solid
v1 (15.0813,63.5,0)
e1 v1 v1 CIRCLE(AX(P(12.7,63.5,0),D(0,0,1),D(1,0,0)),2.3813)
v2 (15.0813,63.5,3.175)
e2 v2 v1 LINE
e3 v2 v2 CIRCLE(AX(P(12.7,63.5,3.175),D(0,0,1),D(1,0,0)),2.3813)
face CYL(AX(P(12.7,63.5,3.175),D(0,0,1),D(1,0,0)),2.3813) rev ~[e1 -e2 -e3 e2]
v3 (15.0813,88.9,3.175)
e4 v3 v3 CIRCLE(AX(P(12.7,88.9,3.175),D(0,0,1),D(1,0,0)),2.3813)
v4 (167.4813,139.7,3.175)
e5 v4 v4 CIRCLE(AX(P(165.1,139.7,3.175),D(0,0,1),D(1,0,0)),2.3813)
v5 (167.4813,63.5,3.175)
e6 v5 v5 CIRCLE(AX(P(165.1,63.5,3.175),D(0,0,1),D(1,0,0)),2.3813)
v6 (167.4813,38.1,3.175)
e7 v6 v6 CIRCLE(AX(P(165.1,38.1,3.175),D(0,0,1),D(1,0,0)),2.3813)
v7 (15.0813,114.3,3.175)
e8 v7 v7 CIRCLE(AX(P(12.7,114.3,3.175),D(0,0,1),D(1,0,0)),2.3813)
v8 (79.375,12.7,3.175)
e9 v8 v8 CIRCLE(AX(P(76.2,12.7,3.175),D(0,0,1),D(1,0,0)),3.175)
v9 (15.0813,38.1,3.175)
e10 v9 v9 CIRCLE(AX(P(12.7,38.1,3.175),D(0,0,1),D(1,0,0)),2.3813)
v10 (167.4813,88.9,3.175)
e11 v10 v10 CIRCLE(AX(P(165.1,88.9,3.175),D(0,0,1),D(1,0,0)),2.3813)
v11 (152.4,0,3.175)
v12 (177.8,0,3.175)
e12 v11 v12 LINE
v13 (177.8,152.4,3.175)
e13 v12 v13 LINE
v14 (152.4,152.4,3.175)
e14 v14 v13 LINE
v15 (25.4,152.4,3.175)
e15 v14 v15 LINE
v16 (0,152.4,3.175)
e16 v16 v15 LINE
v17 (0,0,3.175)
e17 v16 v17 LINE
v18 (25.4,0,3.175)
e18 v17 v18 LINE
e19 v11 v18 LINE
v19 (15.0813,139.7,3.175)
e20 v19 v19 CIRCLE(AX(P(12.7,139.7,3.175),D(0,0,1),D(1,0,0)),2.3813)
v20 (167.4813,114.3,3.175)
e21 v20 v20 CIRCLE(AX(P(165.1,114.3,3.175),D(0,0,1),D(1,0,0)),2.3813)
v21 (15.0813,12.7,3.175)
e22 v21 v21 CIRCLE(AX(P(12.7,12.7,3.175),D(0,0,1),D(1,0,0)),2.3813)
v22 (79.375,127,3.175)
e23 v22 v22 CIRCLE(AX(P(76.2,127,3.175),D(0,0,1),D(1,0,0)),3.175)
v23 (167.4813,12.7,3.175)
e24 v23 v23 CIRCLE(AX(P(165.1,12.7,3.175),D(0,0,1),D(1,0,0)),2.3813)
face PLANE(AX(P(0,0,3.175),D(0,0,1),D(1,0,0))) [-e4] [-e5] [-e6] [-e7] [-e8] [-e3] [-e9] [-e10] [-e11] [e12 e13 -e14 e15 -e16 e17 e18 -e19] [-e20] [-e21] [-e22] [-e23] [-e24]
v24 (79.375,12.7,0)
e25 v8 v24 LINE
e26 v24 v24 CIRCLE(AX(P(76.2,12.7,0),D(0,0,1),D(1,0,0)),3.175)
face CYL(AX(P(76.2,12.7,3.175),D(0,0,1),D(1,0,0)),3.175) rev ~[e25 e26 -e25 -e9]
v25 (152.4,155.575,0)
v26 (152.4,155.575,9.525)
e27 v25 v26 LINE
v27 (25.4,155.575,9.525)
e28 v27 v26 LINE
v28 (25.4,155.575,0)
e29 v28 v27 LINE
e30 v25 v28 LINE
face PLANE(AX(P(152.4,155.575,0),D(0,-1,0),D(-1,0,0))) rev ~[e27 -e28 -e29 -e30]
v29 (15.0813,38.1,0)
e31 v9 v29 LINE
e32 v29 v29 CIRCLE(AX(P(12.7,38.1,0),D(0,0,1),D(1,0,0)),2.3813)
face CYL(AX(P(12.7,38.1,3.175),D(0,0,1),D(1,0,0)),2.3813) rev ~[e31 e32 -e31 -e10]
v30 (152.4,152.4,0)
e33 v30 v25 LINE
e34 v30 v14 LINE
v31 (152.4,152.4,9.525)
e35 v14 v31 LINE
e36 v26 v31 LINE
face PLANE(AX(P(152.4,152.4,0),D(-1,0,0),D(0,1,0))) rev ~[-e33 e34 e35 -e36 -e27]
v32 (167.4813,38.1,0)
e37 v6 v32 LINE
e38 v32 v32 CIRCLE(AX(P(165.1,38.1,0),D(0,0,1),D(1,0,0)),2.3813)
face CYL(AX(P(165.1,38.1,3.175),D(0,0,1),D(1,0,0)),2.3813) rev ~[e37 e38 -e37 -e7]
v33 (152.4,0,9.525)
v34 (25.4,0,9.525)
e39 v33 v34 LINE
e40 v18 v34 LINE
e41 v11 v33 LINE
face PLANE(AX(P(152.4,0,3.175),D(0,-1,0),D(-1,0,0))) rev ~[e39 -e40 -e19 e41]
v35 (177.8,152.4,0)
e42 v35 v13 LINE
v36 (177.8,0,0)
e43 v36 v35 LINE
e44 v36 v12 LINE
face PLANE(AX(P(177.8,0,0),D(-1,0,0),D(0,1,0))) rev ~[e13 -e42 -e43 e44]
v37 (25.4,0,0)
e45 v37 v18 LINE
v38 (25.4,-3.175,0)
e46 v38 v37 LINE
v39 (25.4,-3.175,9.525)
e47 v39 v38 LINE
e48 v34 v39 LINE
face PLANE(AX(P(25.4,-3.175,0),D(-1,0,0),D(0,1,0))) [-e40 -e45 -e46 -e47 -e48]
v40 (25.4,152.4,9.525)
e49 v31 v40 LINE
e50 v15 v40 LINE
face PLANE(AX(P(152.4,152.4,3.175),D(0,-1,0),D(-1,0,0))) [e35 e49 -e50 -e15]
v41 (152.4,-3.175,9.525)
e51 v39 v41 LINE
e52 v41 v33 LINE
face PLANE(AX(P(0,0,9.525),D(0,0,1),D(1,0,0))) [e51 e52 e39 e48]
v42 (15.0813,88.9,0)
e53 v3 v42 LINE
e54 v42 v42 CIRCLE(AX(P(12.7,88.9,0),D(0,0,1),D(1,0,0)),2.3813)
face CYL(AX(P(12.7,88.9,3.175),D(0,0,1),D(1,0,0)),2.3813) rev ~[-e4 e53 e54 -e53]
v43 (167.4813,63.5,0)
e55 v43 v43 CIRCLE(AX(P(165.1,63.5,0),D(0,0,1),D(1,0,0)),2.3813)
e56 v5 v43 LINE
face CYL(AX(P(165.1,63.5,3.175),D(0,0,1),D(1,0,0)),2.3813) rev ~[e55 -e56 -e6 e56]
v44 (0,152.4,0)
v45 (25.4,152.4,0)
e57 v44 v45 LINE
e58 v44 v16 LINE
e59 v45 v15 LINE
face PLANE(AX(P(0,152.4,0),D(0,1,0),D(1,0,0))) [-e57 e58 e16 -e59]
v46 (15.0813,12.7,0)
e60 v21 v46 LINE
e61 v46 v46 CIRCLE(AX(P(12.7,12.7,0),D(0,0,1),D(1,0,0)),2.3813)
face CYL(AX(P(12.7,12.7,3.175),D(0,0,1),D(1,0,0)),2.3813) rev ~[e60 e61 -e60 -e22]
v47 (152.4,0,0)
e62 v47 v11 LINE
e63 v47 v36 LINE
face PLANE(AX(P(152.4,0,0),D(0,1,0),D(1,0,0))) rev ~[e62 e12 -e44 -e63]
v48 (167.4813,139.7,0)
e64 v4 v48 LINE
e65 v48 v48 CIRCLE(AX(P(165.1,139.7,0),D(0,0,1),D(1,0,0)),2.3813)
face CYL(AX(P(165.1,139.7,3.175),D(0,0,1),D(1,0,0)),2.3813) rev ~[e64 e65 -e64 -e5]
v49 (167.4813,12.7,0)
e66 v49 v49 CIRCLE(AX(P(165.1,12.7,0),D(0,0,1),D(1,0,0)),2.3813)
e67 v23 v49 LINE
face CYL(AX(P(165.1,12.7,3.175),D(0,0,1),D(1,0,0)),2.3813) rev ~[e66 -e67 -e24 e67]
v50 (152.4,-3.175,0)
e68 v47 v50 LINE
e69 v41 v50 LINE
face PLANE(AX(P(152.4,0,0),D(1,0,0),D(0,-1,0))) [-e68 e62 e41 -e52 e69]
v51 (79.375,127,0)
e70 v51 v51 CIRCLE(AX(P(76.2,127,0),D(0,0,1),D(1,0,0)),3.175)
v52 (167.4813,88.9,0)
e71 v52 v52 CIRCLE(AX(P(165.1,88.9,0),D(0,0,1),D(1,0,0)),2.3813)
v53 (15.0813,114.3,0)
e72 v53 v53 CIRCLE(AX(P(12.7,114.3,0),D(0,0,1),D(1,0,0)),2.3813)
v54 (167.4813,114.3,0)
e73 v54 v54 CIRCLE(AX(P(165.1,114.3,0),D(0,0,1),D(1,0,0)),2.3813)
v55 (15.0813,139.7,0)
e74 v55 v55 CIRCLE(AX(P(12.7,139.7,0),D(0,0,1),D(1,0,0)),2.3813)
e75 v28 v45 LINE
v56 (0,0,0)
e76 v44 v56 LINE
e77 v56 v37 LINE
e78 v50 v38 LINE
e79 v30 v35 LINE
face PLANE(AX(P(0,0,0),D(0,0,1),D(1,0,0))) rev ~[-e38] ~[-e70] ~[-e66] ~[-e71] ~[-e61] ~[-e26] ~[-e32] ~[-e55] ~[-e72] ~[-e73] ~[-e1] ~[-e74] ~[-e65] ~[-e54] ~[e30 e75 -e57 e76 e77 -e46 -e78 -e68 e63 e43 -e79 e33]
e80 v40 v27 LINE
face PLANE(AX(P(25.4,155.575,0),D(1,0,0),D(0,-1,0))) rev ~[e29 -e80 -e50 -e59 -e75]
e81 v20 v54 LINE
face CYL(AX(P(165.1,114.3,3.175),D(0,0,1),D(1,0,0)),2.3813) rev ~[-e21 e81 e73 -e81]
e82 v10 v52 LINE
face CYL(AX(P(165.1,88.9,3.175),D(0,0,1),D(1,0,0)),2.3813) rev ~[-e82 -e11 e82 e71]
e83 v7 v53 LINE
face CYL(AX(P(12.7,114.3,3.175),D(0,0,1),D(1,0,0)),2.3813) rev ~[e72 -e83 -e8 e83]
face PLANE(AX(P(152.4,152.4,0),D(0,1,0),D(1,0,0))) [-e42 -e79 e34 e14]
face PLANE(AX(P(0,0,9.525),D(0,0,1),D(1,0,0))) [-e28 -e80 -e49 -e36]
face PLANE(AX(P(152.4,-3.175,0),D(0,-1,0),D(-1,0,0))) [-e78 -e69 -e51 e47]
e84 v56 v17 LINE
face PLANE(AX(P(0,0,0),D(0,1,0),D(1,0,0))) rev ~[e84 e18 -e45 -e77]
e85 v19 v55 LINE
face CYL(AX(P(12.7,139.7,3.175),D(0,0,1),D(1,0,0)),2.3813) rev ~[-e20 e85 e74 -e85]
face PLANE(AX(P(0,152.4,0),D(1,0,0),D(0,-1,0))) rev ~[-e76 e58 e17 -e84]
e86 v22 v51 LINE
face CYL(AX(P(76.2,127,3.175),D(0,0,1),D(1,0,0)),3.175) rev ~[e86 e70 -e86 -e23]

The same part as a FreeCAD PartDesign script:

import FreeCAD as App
import Part
import Sketcher
from FreeCAD import Vector
Q = App.Units.Quantity


def add_polygon(sketch, points):
    """Adds a closed chain of lines whose ends are joined by coincident constraints."""
    first, n = sketch.GeometryCount, len(points)
    for a, b in zip(points, points[1:] + points[:1]):
        sketch.addGeometry(Part.LineSegment(App.Vector(*a, 0), App.Vector(*b, 0)), False)
    for i in range(n):
        sketch.addConstraint(Sketcher.Constraint("Coincident", first + i, 2, first + (i + 1) % n, 1))

doc = App.newDocument("Part")
body = doc.addObject("PartDesign::Body", "Body")

# Sketch on XY plane
sketch1 = doc.addObject("Sketcher::SketchObject", "Sketch")
body.addObject(sketch1)
sketch1.AttachmentSupport = (doc.XY_Plane, [""])
sketch1.MapMode = "FlatFace"
add_polygon(sketch1, [(152.4, 0), (177.8, 0), (177.8, 152.4), (152.4, 152.4), (152.4, 155.6), (25.4, 155.6), (25.4, 152.4), (0, 152.4), (0, 0), (25.4, 0), (25.4, -3.2), (152.4, -3.2)])  # lines 0-11
sketch1.addConstraint(Sketcher.Constraint("Horizontal", 0))
sketch1.addConstraint(Sketcher.Constraint("Vertical", 1))
sketch1.addConstraint(Sketcher.Constraint("Horizontal", 2))
sketch1.addConstraint(Sketcher.Constraint("Vertical", 3))
sketch1.addConstraint(Sketcher.Constraint("Horizontal", 4))
sketch1.addConstraint(Sketcher.Constraint("Vertical", 5))
sketch1.addConstraint(Sketcher.Constraint("Horizontal", 6))
sketch1.addConstraint(Sketcher.Constraint("Vertical", 7))
sketch1.addConstraint(Sketcher.Constraint("Horizontal", 8))
sketch1.addConstraint(Sketcher.Constraint("Vertical", 9))
sketch1.addConstraint(Sketcher.Constraint("Horizontal", 10))
sketch1.addConstraint(Sketcher.Constraint("Vertical", 11))
sketch1.addConstraint(Sketcher.Constraint("Coincident", 7, 2, -1, 1))
sketch1.addConstraint(Sketcher.Constraint("PointOnObject", 0, 2, -1))
sketch1.addConstraint(Sketcher.Constraint("Horizontal", 2, 2, 5, 2))
sketch1.addConstraint(Sketcher.Constraint("Vertical", 5, 2, 8, 2))
sketch1.addConstraint(Sketcher.Constraint("Vertical", 3, 2, 10, 2))
sketch1.addConstraint(Sketcher.Constraint("Equal", 2, 6))
sketch1.addConstraint(Sketcher.Constraint("Equal", 5, 9))
sketch1.addConstraint(Sketcher.Constraint("DistanceX", 0, 1, 0, 2, Q("1 in")))
sketch1.addConstraint(Sketcher.Constraint("DistanceY", 1, 1, 1, 2, Q("6 in")))
sketch1.addConstraint(Sketcher.Constraint("DistanceX", -1, 1, 0, 2, Q("7 in")))
sketch1.addConstraint(Sketcher.Constraint("DistanceY", 3, 1, 3, 2, Q("0.125 in")))
pad1 = doc.addObject("PartDesign::Pad", "Pad")
body.addObject(pad1)
pad1.Profile = sketch1
pad1.Length = Q("0.125 in")

# Sketch on XY plane
sketch2 = doc.addObject("Sketcher::SketchObject", "Sketch001")
body.addObject(sketch2)
sketch2.AttachmentSupport = (doc.XY_Plane, [""])
sketch2.MapMode = "FlatFace"
sketch2.AttachmentOffset = App.Placement(Vector(0, 0, 0.125 * 25.4), App.Rotation())
sketch2.addGeometry(Part.Circle(Vector(12.7, 139.7, 0), Vector(0, 0, 1), 2.4), False)
sketch2.addGeometry(Part.Circle(Vector(12.7, 114.3, 0), Vector(0, 0, 1), 2.4), False)
sketch2.addGeometry(Part.Circle(Vector(12.7, 88.9, 0), Vector(0, 0, 1), 2.4), False)
sketch2.addGeometry(Part.Circle(Vector(12.7, 63.5, 0), Vector(0, 0, 1), 2.4), False)
sketch2.addGeometry(Part.Circle(Vector(12.7, 38.1, 0), Vector(0, 0, 1), 2.4), False)
sketch2.addGeometry(Part.Circle(Vector(12.7, 12.7, 0), Vector(0, 0, 1), 2.4), False)
sketch2.addGeometry(Part.Circle(Vector(165.1, 139.7, 0), Vector(0, 0, 1), 2.4), False)
sketch2.addGeometry(Part.Circle(Vector(165.1, 114.3, 0), Vector(0, 0, 1), 2.4), False)
sketch2.addGeometry(Part.Circle(Vector(165.1, 88.9, 0), Vector(0, 0, 1), 2.4), False)
sketch2.addGeometry(Part.Circle(Vector(165.1, 63.5, 0), Vector(0, 0, 1), 2.4), False)
sketch2.addGeometry(Part.Circle(Vector(165.1, 38.1, 0), Vector(0, 0, 1), 2.4), False)
sketch2.addGeometry(Part.Circle(Vector(165.1, 12.7, 0), Vector(0, 0, 1), 2.4), False)
sketch2.addConstraint(Sketcher.Constraint("Equal", 0, 1))
sketch2.addConstraint(Sketcher.Constraint("Equal", 1, 2))
sketch2.addConstraint(Sketcher.Constraint("Equal", 2, 3))
sketch2.addConstraint(Sketcher.Constraint("Equal", 3, 4))
sketch2.addConstraint(Sketcher.Constraint("Equal", 4, 5))
sketch2.addConstraint(Sketcher.Constraint("Equal", 5, 6))
sketch2.addConstraint(Sketcher.Constraint("Equal", 6, 7))
sketch2.addConstraint(Sketcher.Constraint("Equal", 7, 8))
sketch2.addConstraint(Sketcher.Constraint("Equal", 8, 9))
sketch2.addConstraint(Sketcher.Constraint("Equal", 9, 10))
sketch2.addConstraint(Sketcher.Constraint("Equal", 10, 11))
sketch2.addConstraint(Sketcher.Constraint("Horizontal", 0, 3, 6, 3))
sketch2.addConstraint(Sketcher.Constraint("Horizontal", 1, 3, 7, 3))
sketch2.addConstraint(Sketcher.Constraint("Horizontal", 2, 3, 8, 3))
sketch2.addConstraint(Sketcher.Constraint("Horizontal", 3, 3, 9, 3))
sketch2.addConstraint(Sketcher.Constraint("Horizontal", 4, 3, 10, 3))
sketch2.addConstraint(Sketcher.Constraint("Horizontal", 5, 3, 11, 3))
sketch2.addConstraint(Sketcher.Constraint("Vertical", 0, 3, 1, 3))
sketch2.addConstraint(Sketcher.Constraint("Vertical", 1, 3, 2, 3))
sketch2.addConstraint(Sketcher.Constraint("Vertical", 2, 3, 3, 3))
sketch2.addConstraint(Sketcher.Constraint("Vertical", 3, 3, 4, 3))
sketch2.addConstraint(Sketcher.Constraint("Vertical", 4, 3, 5, 3))
sketch2.addConstraint(Sketcher.Constraint("Vertical", 6, 3, 7, 3))
sketch2.addConstraint(Sketcher.Constraint("Vertical", 7, 3, 8, 3))
sketch2.addConstraint(Sketcher.Constraint("Vertical", 8, 3, 9, 3))
sketch2.addConstraint(Sketcher.Constraint("Vertical", 9, 3, 10, 3))
sketch2.addConstraint(Sketcher.Constraint("Vertical", 10, 3, 11, 3))
sketch2.addConstraint(Sketcher.Constraint("Diameter", 0, Q("0.1875 in")))
sketch2.addConstraint(Sketcher.Constraint("DistanceY", 1, 3, 0, 3, Q("1 in")))
sketch2.addConstraint(Sketcher.Constraint("DistanceY", 2, 3, 1, 3, Q("1 in")))
sketch2.addConstraint(Sketcher.Constraint("DistanceY", 3, 3, 2, 3, Q("1 in")))
sketch2.addConstraint(Sketcher.Constraint("DistanceY", 4, 3, 3, 3, Q("1 in")))
sketch2.addConstraint(Sketcher.Constraint("DistanceY", 5, 3, 4, 3, Q("1 in")))
sketch2.addConstraint(Sketcher.Constraint("DistanceX", -1, 1, 0, 3, Q("0.5 in")))
sketch2.addConstraint(Sketcher.Constraint("DistanceY", -1, 1, 5, 3, Q("0.5 in")))
sketch2.addConstraint(Sketcher.Constraint("DistanceX", 0, 3, 6, 3, Q("6 in")))
pocket1 = doc.addObject("PartDesign::Pocket", "Pocket")
body.addObject(pocket1)
pocket1.Profile = sketch2
pocket1.Type = "UpToFirst"

# Sketch on XY plane
sketch3 = doc.addObject("Sketcher::SketchObject", "Sketch002")
body.addObject(sketch3)
sketch3.AttachmentSupport = (doc.XY_Plane, [""])
sketch3.MapMode = "FlatFace"
sketch3.AttachmentOffset = App.Placement(Vector(0, 0, 0.125 * 25.4), App.Rotation())
sketch3.addGeometry(Part.Circle(Vector(76.2, 127, 0), Vector(0, 0, 1), 3.2), False)
sketch3.addGeometry(Part.Circle(Vector(76.2, 12.7, 0), Vector(0, 0, 1), 3.2), False)
sketch3.addConstraint(Sketcher.Constraint("Equal", 0, 1))
sketch3.addConstraint(Sketcher.Constraint("Vertical", 0, 3, 1, 3))
sketch3.addConstraint(Sketcher.Constraint("Diameter", 0, Q("0.25 in")))
sketch3.addConstraint(Sketcher.Constraint("DistanceX", -1, 1, 0, 3, Q("3 in")))
sketch3.addConstraint(Sketcher.Constraint("DistanceY", -1, 1, 1, 3, Q("0.5 in")))
sketch3.addConstraint(Sketcher.Constraint("DistanceY", 1, 3, 0, 3, Q("4.5 in")))
pocket2 = doc.addObject("PartDesign::Pocket", "Pocket001")
body.addObject(pocket2)
pocket2.Profile = sketch3
pocket2.Length = Q("0.125 in")

# Sketch on XY plane
sketch4 = doc.addObject("Sketcher::SketchObject", "Sketch003")
body.addObject(sketch4)
sketch4.AttachmentSupport = (doc.XY_Plane, [""])
sketch4.MapMode = "FlatFace"
sketch4.AttachmentOffset = App.Placement(Vector(0, 0, 0.125 * 25.4), App.Rotation())
add_polygon(sketch4, [(152.4, 155.6), (25.4, 155.6), (25.4, 152.4), (152.4, 152.4)])  # lines 0-3
add_polygon(sketch4, [(25.4, 0), (25.4, -3.2), (152.4, -3.2), (152.4, 0)])  # lines 4-7
sketch4.addConstraint(Sketcher.Constraint("Horizontal", 0))
sketch4.addConstraint(Sketcher.Constraint("Vertical", 1))
sketch4.addConstraint(Sketcher.Constraint("Horizontal", 2))
sketch4.addConstraint(Sketcher.Constraint("Vertical", 3))
sketch4.addConstraint(Sketcher.Constraint("Vertical", 4))
sketch4.addConstraint(Sketcher.Constraint("Horizontal", 5))
sketch4.addConstraint(Sketcher.Constraint("Vertical", 6))
sketch4.addConstraint(Sketcher.Constraint("Horizontal", 7))
sketch4.addConstraint(Sketcher.Constraint("PointOnObject", 6, 2, -1))
sketch4.addConstraint(Sketcher.Constraint("Vertical", 1, 2, 4, 2))
sketch4.addConstraint(Sketcher.Constraint("Vertical", 3, 2, 5, 2))
sketch4.addConstraint(Sketcher.Constraint("Equal", 3, 4))
sketch4.addConstraint(Sketcher.Constraint("DistanceX", 0, 2, 0, 1, Q("5 in")))
sketch4.addConstraint(Sketcher.Constraint("DistanceX", -1, 1, 0, 2, Q("1 in")))
sketch4.addConstraint(Sketcher.Constraint("DistanceY", -1, 1, 1, 2, Q("6 in")))
sketch4.addConstraint(Sketcher.Constraint("DistanceY", 1, 2, 1, 1, Q("0.125 in")))
pad2 = doc.addObject("PartDesign::Pad", "Pad001")
body.addObject(pad2)
pad2.Profile = sketch4
pad2.Length = Q("0.25 in")

doc.recompute()
